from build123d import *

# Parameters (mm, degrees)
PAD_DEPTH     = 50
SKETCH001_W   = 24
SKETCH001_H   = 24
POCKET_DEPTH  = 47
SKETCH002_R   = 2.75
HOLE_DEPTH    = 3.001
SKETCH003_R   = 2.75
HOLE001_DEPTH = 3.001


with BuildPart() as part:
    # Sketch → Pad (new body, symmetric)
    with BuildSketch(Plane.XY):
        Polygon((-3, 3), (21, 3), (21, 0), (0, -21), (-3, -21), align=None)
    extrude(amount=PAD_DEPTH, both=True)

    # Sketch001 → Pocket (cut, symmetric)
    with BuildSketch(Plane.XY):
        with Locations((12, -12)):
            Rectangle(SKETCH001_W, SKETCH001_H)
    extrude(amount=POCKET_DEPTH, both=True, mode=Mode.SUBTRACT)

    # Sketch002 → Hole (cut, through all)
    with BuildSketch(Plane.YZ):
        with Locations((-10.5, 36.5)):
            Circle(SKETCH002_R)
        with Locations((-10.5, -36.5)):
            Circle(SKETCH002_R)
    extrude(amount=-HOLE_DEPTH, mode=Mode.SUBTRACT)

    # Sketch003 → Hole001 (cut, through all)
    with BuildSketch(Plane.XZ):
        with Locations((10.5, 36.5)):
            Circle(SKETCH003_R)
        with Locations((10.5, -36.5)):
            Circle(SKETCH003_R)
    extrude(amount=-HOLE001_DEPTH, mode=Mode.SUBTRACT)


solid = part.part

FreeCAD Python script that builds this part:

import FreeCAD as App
import Part
import Sketcher

V = App.Vector


def add_polygon(sketch, points):
    """Adds a closed chain of lines whose ends are joined by coincident constraints."""
    first, n = sketch.GeometryCount, len(points)
    for a, b in zip(points, points[1:] + points[:1]):
        sketch.addGeometry(Part.LineSegment(App.Vector(*a, 0), App.Vector(*b, 0)), False)
    for i in range(n):
        sketch.addConstraint(Sketcher.Constraint("Coincident", first + i, 2, first + (i + 1) % n, 1))

doc = App.newDocument("Part")
params = doc.addObject("Spreadsheet::Sheet", "Params")
for row, (alias, value) in enumerate([
    ("sketch1_width", "24 mm"),
    ("sketch1_width2", "3 mm"),
    ("pad1_length", "100 mm"),
    ("sketch2_width", "24 mm"),
    ("pocket1_length", "94 mm"),
    ("sketch3_diameter", "5.5 mm"),
    ("sketch4_diameter", "5.5 mm"),
], start=1):
    params.set(f"A{row}", alias)
    params.set(f"B{row}", "=" + value)
    params.setAlias(f"B{row}", alias)

body = doc.addObject("PartDesign::Body", "Body")

# Sketch on XY plane
sketch1 = doc.addObject("Sketcher::SketchObject", "Sketch")
body.addObject(sketch1)
sketch1.AttachmentSupport = (doc.XY_Plane, [""])
sketch1.MapMode = "FlatFace"
add_polygon(sketch1, [(21, 3), (-3, 3), (-3, -21), (0, -21), (21, 0)])  # lines 0-4
sketch1.addConstraint([
    Sketcher.Constraint("Horizontal", 0),
    Sketcher.Constraint("Vertical", 1),
    Sketcher.Constraint("Horizontal", 2),
    Sketcher.Constraint("Vertical", 4),
    Sketcher.Constraint("PointOnObject", 2, 2, -2),
    Sketcher.Constraint("PointOnObject", 3, 2, -1),
    Sketcher.Constraint("Equal", 0, 1),
    Sketcher.Constraint("Equal", 2, 4),
    Sketcher.Constraint("DistanceX", 0, 2, 0, 1, 24.0),
    Sketcher.Constraint("DistanceX", 2, 1, 2, 2, 3.0),
])
sketch1.setExpression("Constraints[13]", "Params.sketch1_width")
sketch1.setExpression("Constraints[14]", "Params.sketch1_width2")
pad1 = doc.addObject("PartDesign::Pad", "Pad")
body.addObject(pad1)
pad1.Profile = sketch1
pad1.setExpression("Length", "Params.pad1_length")
pad1.Midplane = True

# Sketch on XY plane
sketch2 = doc.addObject("Sketcher::SketchObject", "Sketch001")
body.addObject(sketch2)
sketch2.AttachmentSupport = (doc.XY_Plane, [""])
sketch2.MapMode = "FlatFace"
add_polygon(sketch2, [(0, 0), (0, -24), (24, -24), (24, 0)])  # lines 0-3
sketch2.addConstraint([
    Sketcher.Constraint("Vertical", 0),
    Sketcher.Constraint("Horizontal", 1),
    Sketcher.Constraint("Vertical", 2),
    Sketcher.Constraint("Horizontal", 3),
    Sketcher.Constraint("Coincident", 3, 2, -1, 1),
    Sketcher.Constraint("Equal", 3, 0),
    Sketcher.Constraint("DistanceX", 1, 1, 1, 2, 24.0),
])
sketch2.setExpression("Constraints[10]", "Params.sketch2_width")
pocket1 = doc.addObject("PartDesign::Pocket", "Pocket")
body.addObject(pocket1)
pocket1.Profile = sketch2
pocket1.setExpression("Length", "Params.pocket1_length")
pocket1.Midplane = True

# Sketch on YZ plane
sketch3 = doc.addObject("Sketcher::SketchObject", "Sketch002")
body.addObject(sketch3)
sketch3.AttachmentSupport = (doc.YZ_Plane, [""])
sketch3.MapMode = "FlatFace"
sketch3.addGeometry([
    Part.Circle(V(-10.5, 36.5, 0), V(0, 0, 1), 2.8),
    Part.Circle(V(-10.5, -36.5, 0), V(0, 0, 1), 2.8),
], False)
sketch3.addConstraint([
    Sketcher.Constraint("Equal", 0, 1),
    Sketcher.Constraint("Symmetric", 0, 3, 1, 3, -1),
    Sketcher.Constraint("Diameter", 0, 5.5),
    Sketcher.Constraint("DistanceY", 1, 3, 0, 3, 73.0),
    Sketcher.Constraint("DistanceX", 0, 3, -1, 1, 10.5),
])
sketch3.setExpression("Constraints[2]", "Params.sketch3_diameter")
pocket2 = doc.addObject("PartDesign::Pocket", "Pocket001")
body.addObject(pocket2)
pocket2.Profile = sketch3
pocket2.Type = "ThroughAll"

# Sketch on XZ plane
sketch4 = doc.addObject("Sketcher::SketchObject", "Sketch003")
body.addObject(sketch4)
sketch4.AttachmentSupport = (doc.XZ_Plane, [""])
sketch4.MapMode = "FlatFace"
sketch4.addGeometry([
    Part.Circle(V(10.5, 36.5, 0), V(0, 0, 1), 2.8),
    Part.Circle(V(10.5, -36.5, 0), V(0, 0, 1), 2.8),
], False)
sketch4.addConstraint([
    Sketcher.Constraint("Equal", 0, 1),
    Sketcher.Constraint("Symmetric", 0, 3, 1, 3, -1),
    Sketcher.Constraint("Diameter", 0, 5.5),
    Sketcher.Constraint("DistanceY", 1, 3, 0, 3, 73.0),
    Sketcher.Constraint("DistanceX", -1, 1, 0, 3, 10.5),
])
sketch4.setExpression("Constraints[2]", "Params.sketch4_diameter")
pocket3 = doc.addObject("PartDesign::Pocket", "Pocket002")
body.addObject(pocket3)
pocket3.Profile = sketch4
pocket3.Type = "ThroughAll"

doc.recompute()
